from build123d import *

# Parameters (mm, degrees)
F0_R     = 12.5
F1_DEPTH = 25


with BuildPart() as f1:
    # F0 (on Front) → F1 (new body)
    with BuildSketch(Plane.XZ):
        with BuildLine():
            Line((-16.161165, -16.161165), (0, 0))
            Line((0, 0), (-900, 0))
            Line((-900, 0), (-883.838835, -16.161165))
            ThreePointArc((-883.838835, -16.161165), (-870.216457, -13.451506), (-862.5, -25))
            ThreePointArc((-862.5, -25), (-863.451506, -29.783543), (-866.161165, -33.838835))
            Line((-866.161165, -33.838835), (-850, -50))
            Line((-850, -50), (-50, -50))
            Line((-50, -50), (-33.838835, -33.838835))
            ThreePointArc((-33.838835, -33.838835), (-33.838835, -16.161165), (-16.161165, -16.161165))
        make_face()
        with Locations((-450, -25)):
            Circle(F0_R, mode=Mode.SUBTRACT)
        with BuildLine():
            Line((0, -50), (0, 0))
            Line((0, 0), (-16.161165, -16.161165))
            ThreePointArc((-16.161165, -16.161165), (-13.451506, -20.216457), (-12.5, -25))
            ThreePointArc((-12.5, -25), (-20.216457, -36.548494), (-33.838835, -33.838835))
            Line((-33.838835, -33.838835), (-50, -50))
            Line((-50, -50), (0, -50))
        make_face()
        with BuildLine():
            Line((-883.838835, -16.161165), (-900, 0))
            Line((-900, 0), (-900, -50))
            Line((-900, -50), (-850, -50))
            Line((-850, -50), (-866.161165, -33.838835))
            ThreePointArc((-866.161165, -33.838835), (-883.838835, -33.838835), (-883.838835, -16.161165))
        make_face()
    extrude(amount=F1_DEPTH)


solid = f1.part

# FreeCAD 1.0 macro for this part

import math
import FreeCAD as App
import Part
import Sketcher

V = App.Vector

doc = App.newDocument("Part")
body = doc.addObject("PartDesign::Body", "Body")

sketch1 = doc.addObject("Sketcher::SketchObject", "Sketch")
body.addObject(sketch1)
sketch1.AttachmentSupport = (doc.XZ_Plane, [""])
sketch1.MapMode = "FlatFace"
sketch1.addGeometry(Part.LineSegment(V(0, 0, 0), V(-900, 0, 0)), False)
sketch1.addGeometry(Part.LineSegment(V(-900, 0, 0), V(-900, -50, 0)), False)
sketch1.addGeometry(Part.LineSegment(V(-900, -50, 0), V(0, -50, 0)), False)
sketch1.addGeometry(Part.LineSegment(V(0, -50, 0), V(0, 0, 0)), False)
sketch1.addGeometry(Part.ArcOfCircle(Part.Circle(V(-25, -25, 0), V(0, 0, 1), 13), math.radians(45), math.radians(225)), False)
sketch1.addGeometry(Part.ArcOfCircle(Part.Circle(V(-25, -25, 0), V(0, 0, 1), 13), math.radians(0), math.radians(45)), False)
sketch1.addGeometry(Part.ArcOfCircle(Part.Circle(V(-25, -25, 0), V(0, 0, 1), 13), math.radians(-135), math.radians(0)), False)
sketch1.addGeometry(Part.ArcOfCircle(Part.Circle(V(-875, -25, 0), V(0, 0, 1), 13), math.radians(0), math.radians(135)), False)
sketch1.addGeometry(Part.ArcOfCircle(Part.Circle(V(-875, -25, 0), V(0, 0, 1), 13), math.radians(-45), math.radians(0)), False)
sketch1.addGeometry(Part.ArcOfCircle(Part.Circle(V(-875, -25, 0), V(0, 0, 1), 13), math.radians(135), math.radians(315)), False)
sketch1.addGeometry(Part.Circle(V(-450, -25, 0), V(0, 0, 1), 12), False)
sketch1.addConstraint(Sketcher.Constraint("Coincident", 0, 2, 1, 1))
sketch1.addConstraint(Sketcher.Constraint("Coincident", 1, 2, 2, 1))
sketch1.addConstraint(Sketcher.Constraint("Coincident", 2, 2, 3, 1))
sketch1.addConstraint(Sketcher.Constraint("Coincident", 3, 2, 0, 1))
sketch1.addConstraint(Sketcher.Constraint("Tangent", 4, 1, 5, 2))
sketch1.addConstraint(Sketcher.Constraint("Tangent", 5, 1, 6, 2))
sketch1.addConstraint(Sketcher.Constraint("Tangent", 6, 1, 4, 2))
sketch1.addConstraint(Sketcher.Constraint("Tangent", 7, 1, 8, 2))
sketch1.addConstraint(Sketcher.Constraint("Tangent", 8, 1, 9, 2))
sketch1.addConstraint(Sketcher.Constraint("Tangent", 9, 1, 7, 2))
sketch1.addConstraint(Sketcher.Constraint("Horizontal", 0))
sketch1.addConstraint(Sketcher.Constraint("Vertical", 1))
sketch1.addConstraint(Sketcher.Constraint("Horizontal", 2))
sketch1.addConstraint(Sketcher.Constraint("Vertical", 3))
sketch1.addConstraint(Sketcher.Constraint("Coincident", 3, 2, -1, 1))
sketch1.addConstraint(Sketcher.Constraint("Equal", 6, 7))
sketch1.addConstraint(Sketcher.Constraint("Equal", 9, 10))
sketch1.addConstraint(Sketcher.Constraint("Horizontal", 6, 3, 7, 3))
sketch1.addConstraint(Sketcher.Constraint("Horizontal", 9, 3, 10, 3))
sketch1.addConstraint(Sketcher.Constraint("Horizontal", 10, 3, 5, 1))
sketch1.addConstraint(Sketcher.Constraint("Horizontal", 5, 1, 7, 1))
sketch1.addConstraint(Sketcher.Constraint("Horizontal", 6, 1, 8, 1))
sketch1.addConstraint(Sketcher.Constraint("Horizontal", 4, 1, 9, 1))
sketch1.addConstraint(Sketcher.Constraint("Diameter", 10, 25.0))
sketch1.addConstraint(Sketcher.Constraint("DistanceX", 0, 2, 0, 1, 900.0))
sketch1.addConstraint(Sketcher.Constraint("DistanceY", 1, 2, 1, 1, 50.0))
sketch1.addConstraint(Sketcher.Constraint("DistanceX", 4, 3, -1, 1, 25.0))
sketch1.addConstraint(Sketcher.Constraint("DistanceY", 4, 3, -1, 1, 25.0))
sketch1.addConstraint(Sketcher.Constraint("DistanceX", 7, 3, -1, 1, 875.0))
sketch1.addConstraint(Sketcher.Constraint("DistanceX", 10, 3, -1, 1, 450.0))
sketch1.addConstraint(Sketcher.Constraint("DistanceX", 5, 3, 4, 1, 8.838838))
sketch1.addConstraint(Sketcher.Constraint("DistanceX", 6, 1, 5, 3, 8.838832))
pad1 = doc.addObject("PartDesign::Pad", "Pad")
body.addObject(pad1)
pad1.Profile = sketch1
pad1.Length = 25

doc.recompute()
